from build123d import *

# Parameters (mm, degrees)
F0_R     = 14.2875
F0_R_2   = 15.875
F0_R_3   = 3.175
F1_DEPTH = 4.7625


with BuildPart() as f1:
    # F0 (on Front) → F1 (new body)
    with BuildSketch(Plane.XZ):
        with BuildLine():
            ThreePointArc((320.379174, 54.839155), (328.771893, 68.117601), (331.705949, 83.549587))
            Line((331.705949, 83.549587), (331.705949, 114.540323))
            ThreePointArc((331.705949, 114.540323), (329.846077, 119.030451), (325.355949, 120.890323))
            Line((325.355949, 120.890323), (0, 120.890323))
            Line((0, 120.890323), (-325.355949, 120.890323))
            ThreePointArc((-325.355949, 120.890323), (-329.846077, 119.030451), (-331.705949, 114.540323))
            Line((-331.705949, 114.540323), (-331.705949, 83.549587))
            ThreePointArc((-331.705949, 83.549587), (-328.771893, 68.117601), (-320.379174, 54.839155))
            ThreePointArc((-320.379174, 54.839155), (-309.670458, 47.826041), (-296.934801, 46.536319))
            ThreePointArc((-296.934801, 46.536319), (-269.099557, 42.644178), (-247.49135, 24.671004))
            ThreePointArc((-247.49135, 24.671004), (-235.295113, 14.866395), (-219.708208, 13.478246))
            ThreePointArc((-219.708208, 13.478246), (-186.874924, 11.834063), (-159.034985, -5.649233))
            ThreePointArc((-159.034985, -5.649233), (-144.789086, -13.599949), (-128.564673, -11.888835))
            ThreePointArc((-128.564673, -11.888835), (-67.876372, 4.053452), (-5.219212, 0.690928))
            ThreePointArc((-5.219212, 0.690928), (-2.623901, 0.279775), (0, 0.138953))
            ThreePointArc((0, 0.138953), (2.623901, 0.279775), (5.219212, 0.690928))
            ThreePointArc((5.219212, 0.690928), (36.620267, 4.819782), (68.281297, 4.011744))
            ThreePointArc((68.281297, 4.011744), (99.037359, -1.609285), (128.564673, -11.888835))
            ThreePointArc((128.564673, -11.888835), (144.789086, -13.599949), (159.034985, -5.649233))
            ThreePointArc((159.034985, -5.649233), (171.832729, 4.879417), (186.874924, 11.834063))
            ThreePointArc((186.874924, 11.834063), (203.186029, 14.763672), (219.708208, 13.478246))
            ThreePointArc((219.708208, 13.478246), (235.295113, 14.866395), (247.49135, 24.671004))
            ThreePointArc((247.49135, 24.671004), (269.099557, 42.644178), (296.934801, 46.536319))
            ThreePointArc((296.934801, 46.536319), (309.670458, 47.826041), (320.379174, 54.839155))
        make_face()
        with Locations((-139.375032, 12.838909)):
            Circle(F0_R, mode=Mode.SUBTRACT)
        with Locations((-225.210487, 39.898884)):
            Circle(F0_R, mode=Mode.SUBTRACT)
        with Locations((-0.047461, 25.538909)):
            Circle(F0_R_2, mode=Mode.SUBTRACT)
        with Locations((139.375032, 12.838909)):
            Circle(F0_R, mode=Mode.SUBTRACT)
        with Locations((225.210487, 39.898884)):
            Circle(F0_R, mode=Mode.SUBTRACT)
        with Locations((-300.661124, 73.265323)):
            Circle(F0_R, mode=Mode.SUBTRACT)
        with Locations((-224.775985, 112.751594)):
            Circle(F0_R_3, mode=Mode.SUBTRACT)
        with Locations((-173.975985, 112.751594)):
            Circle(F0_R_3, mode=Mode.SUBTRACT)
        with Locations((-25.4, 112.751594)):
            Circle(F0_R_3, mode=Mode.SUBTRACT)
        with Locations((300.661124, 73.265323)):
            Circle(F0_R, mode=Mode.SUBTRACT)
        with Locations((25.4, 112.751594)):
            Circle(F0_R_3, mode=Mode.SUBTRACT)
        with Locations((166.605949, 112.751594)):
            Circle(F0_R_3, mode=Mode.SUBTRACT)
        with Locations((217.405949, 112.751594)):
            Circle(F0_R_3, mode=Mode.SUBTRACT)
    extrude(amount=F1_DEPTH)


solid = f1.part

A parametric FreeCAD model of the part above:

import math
import FreeCAD as App
import Part
import Sketcher

V = App.Vector
Q = App.Units.Quantity

doc = App.newDocument("Part")
body = doc.addObject("PartDesign::Body", "Body")

# Sketch on XZ plane
sketch1 = body.newObject("Sketcher::SketchObject", "Sketch")
sketch1.AttachmentSupport = (doc.getObject("XZ_Plane"), [""])
sketch1.MapMode = "FlatFace"
sketch1.addGeometry(Part.ArcOfCircle(Part.Circle(V(289.655818, 83.549587, 0), V(0, 0, 1), 42.050131), math.radians(-43.060229), math.radians(0)), False)
sketch1.addGeometry(Part.LineSegment(V(331.705949, 83.549587, 0), V(331.705949, 114.540323, 0)), False)
sketch1.addGeometry(Part.ArcOfCircle(Part.Circle(V(325.355949, 114.540323, 0), V(0, 0, 1), 6.35), math.radians(0.000002), math.radians(89.999998)), False)
sketch1.addGeometry(Part.LineSegment(V(325.355949, 120.890323, 0), V(-325.355949, 120.890323, 0)), False)
sketch1.addGeometry(Part.ArcOfCircle(Part.Circle(V(-325.355949, 114.540323, 0), V(0, 0, 1), 6.35), math.radians(90.000002), math.radians(179.999998)), False)
sketch1.addGeometry(Part.LineSegment(V(-331.705949, 114.540323, 0), V(-331.705949, 83.549587, 0)), False)
sketch1.addGeometry(Part.ArcOfCircle(Part.Circle(V(-289.655818, 83.549587, 0), V(0, 0, 1), 42.050131), math.radians(180), math.radians(223.060229)), False)
sketch1.addGeometry(Part.ArcOfCircle(Part.Circle(V(-300.661125, 73.26532, 0), V(0, 0, 1), 26.987497), math.radians(-136.939774), math.radians(-82.063475)), False)
sketch1.addGeometry(Part.ArcOfCircle(Part.Circle(V(-289.850516, -4.27941, 0), V(0, 0, 1), 51.307167), math.radians(34.350693), math.radians(97.936524)), False)
sketch1.addGeometry(Part.ArcOfCircle(Part.Circle(V(-225.210487, 39.898884, 0), V(0, 0, 1), 26.9875), math.radians(-145.649304), math.radians(-78.235911)), False)
sketch1.addGeometry(Part.ArcOfCircle(Part.Circle(V(-206.440665, -50.229347, 0), V(0, 0, 1), 65.074458), math.radians(43.240575), math.radians(101.764089)), False)
sketch1.addGeometry(Part.ArcOfCircle(Part.Circle(V(-139.375032, 12.838906, 0), V(0, 0, 1), 26.987498), math.radians(-136.75943), math.radians(-66.386237)), False)
sketch1.addGeometry(Part.ArcOfCircle(Part.Circle(V(-47.289987, -197.797508, 0), V(0, 0, 1), 202.898027), math.radians(78.032937), math.radians(113.613762)), False)
sketch1.addGeometry(Part.ArcOfCircle(Part.Circle(V(0.047457, 25.538856, 0), V(0, 0, 1), 25.399947), math.radians(-101.967077), math.radians(-90.10705)), False)
sketch1.addGeometry(Part.ArcOfCircle(Part.Circle(V(-0.047457, 25.538856, 0), V(0, 0, 1), 25.399947), math.radians(-89.89295), math.radians(-78.032923)), False)
sketch1.addGeometry(Part.ArcOfCircle(Part.Circle(V(47.289989, -197.797544, 0), V(0, 0, 1), 202.898063), math.radians(84.061701), math.radians(101.967061)), False)
sketch1.addGeometry(Part.ArcOfCircle(Part.Circle(V(47.289991, -197.797494, 0), V(0, 0, 1), 202.898013), math.radians(66.386237), math.radians(84.0617)), False)
sketch1.addGeometry(Part.ArcOfCircle(Part.Circle(V(139.375032, 12.838906, 0), V(0, 0, 1), 26.987498), math.radians(-113.613763), math.radians(-43.24057)), False)
sketch1.addGeometry(Part.ArcOfCircle(Part.Circle(V(206.440661, -50.22934, 0), V(0, 0, 1), 65.07445), math.radians(107.497667), math.radians(136.759427)), False)
sketch1.addGeometry(Part.ArcOfCircle(Part.Circle(V(206.440664, -50.229328, 0), V(0, 0, 1), 65.074439), math.radians(78.235907), math.radians(107.497673)), False)
sketch1.addGeometry(Part.ArcOfCircle(Part.Circle(V(225.210487, 39.898884, 0), V(0, 0, 1), 26.9875), math.radians(-101.764089), math.radians(-34.350696)), False)
sketch1.addGeometry(Part.ArcOfCircle(Part.Circle(V(289.850516, -4.27941, 0), V(0, 0, 1), 51.307167), math.radians(82.063476), math.radians(145.649307)), False)
sketch1.addGeometry(Part.ArcOfCircle(Part.Circle(V(300.661125, 73.26532, 0), V(0, 0, 1), 26.987497), math.radians(-97.936525), math.radians(-43.060226)), False)
sketch1.addGeometry(Part.Circle(V(-139.375032, 12.838909, 0), V(0, 0, 1), 14.2875), False)
sketch1.addGeometry(Part.Circle(V(-0.047461, 25.538909, 0), V(0, 0, 1), 15.875), False)
sketch1.addGeometry(Part.Circle(V(-225.210487, 39.898884, 0), V(0, 0, 1), 14.2875), False)
sketch1.addGeometry(Part.Circle(V(139.375032, 12.838909, 0), V(0, 0, 1), 14.2875), False)
sketch1.addGeometry(Part.Circle(V(225.210487, 39.898884, 0), V(0, 0, 1), 14.2875), False)
sketch1.addGeometry(Part.Circle(V(-300.661124, 73.265323, 0), V(0, 0, 1), 14.2875), False)
sketch1.addGeometry(Part.Circle(V(-224.775985, 112.751594, 0), V(0, 0, 1), 3.175), False)
sketch1.addGeometry(Part.Circle(V(-173.975985, 112.751594, 0), V(0, 0, 1), 3.175), False)
sketch1.addGeometry(Part.Circle(V(-25.4, 112.751594, 0), V(0, 0, 1), 3.175), False)
sketch1.addGeometry(Part.Circle(V(300.661124, 73.265323, 0), V(0, 0, 1), 14.2875), False)
sketch1.addGeometry(Part.Circle(V(25.4, 112.751594, 0), V(0, 0, 1), 3.175), False)
sketch1.addGeometry(Part.Circle(V(166.605949, 112.751594, 0), V(0, 0, 1), 3.175), False)
sketch1.addGeometry(Part.Circle(V(217.405949, 112.751594, 0), V(0, 0, 1), 3.175), False)
sketch1.addConstraint(Sketcher.Constraint("Coincident", 0, 2, 1, 1))
sketch1.addConstraint(Sketcher.Constraint("Coincident", 1, 2, 2, 1))
sketch1.addConstraint(Sketcher.Constraint("Coincident", 2, 2, 3, 1))
sketch1.addConstraint(Sketcher.Constraint("Coincident", 3, 2, 4, 1))
sketch1.addConstraint(Sketcher.Constraint("Coincident", 4, 2, 5, 1))
sketch1.addConstraint(Sketcher.Constraint("Coincident", 5, 2, 6, 1))
sketch1.addConstraint(Sketcher.Constraint("Coincident", 6, 2, 7, 1))
sketch1.addConstraint(Sketcher.Constraint("Coincident", 7, 2, 8, 2))
sketch1.addConstraint(Sketcher.Constraint("Coincident", 8, 1, 9, 1))
sketch1.addConstraint(Sketcher.Constraint("Coincident", 9, 2, 10, 2))
sketch1.addConstraint(Sketcher.Constraint("Coincident", 10, 1, 11, 1))
sketch1.addConstraint(Sketcher.Constraint("Coincident", 11, 2, 12, 2))
sketch1.addConstraint(Sketcher.Constraint("Coincident", 12, 1, 13, 1))
sketch1.addConstraint(Sketcher.Constraint("Coincident", 13, 2, 14, 1))
sketch1.addConstraint(Sketcher.Constraint("Coincident", 14, 2, 15, 2))
sketch1.addConstraint(Sketcher.Constraint("Coincident", 15, 1, 16, 2))
sketch1.addConstraint(Sketcher.Constraint("Coincident", 16, 1, 17, 1))
sketch1.addConstraint(Sketcher.Constraint("Coincident", 17, 2, 18, 2))
sketch1.addConstraint(Sketcher.Constraint("Coincident", 18, 1, 19, 2))
sketch1.addConstraint(Sketcher.Constraint("Coincident", 19, 1, 20, 1))
sketch1.addConstraint(Sketcher.Constraint("Coincident", 20, 2, 21, 2))
sketch1.addConstraint(Sketcher.Constraint("Coincident", 21, 1, 22, 1))
sketch1.addConstraint(Sketcher.Constraint("Coincident", 22, 2, 0, 1))
sketch1.addConstraint(Sketcher.Constraint("Vertical", 1))
sketch1.addConstraint(Sketcher.Constraint("Horizontal", 3))
sketch1.addConstraint(Sketcher.Constraint("Vertical", 5))
sketch1.addConstraint(Sketcher.Constraint("Coincident", 23, 3, 11, 3))
sketch1.addConstraint(Sketcher.Constraint("Coincident", 25, 3, 9, 3))
sketch1.addConstraint(Sketcher.Constraint("Coincident", 26, 3, 17, 3))
sketch1.addConstraint(Sketcher.Constraint("Coincident", 27, 3, 20, 3))
sketch1.addConstraint(Sketcher.Constraint("Coincident", 28, 3, 7, 3))
sketch1.addConstraint(Sketcher.Constraint("Coincident", 32, 3, 22, 3))
sketch1.addConstraint(Sketcher.Constraint("PointOnObject", 13, 2, -2))
sketch1.addConstraint(Sketcher.Constraint("Diameter", 24, Q("1.25 in")))
sketch1.addConstraint(Sketcher.Constraint("Diameter", 29, Q("0.25 in")))
sketch1.addConstraint(Sketcher.Constraint("Diameter", 30, Q("0.25 in")))
sketch1.addConstraint(Sketcher.Constraint("Diameter", 31, Q("0.25 in")))
sketch1.addConstraint(Sketcher.Constraint("Diameter", 33, Q("0.25 in")))
sketch1.addConstraint(Sketcher.Constraint("Diameter", 34, Q("0.25 in")))
sketch1.addConstraint(Sketcher.Constraint("Diameter", 35, Q("0.25 in")))
sketch1.addConstraint(Sketcher.Constraint("Radius", 2, Q("0.25 in")))
sketch1.addConstraint(Sketcher.Constraint("Radius", 4, Q("0.25 in")))
sketch1.addConstraint(Sketcher.Constraint("Diameter", 23, Q("1.125 in")))
sketch1.addConstraint(Sketcher.Constraint("Diameter", 25, Q("1.125 in")))
sketch1.addConstraint(Sketcher.Constraint("Diameter", 26, Q("1.125 in")))
sketch1.addConstraint(Sketcher.Constraint("Diameter", 27, Q("1.125 in")))
sketch1.addConstraint(Sketcher.Constraint("Diameter", 28, Q("1.125 in")))
sketch1.addConstraint(Sketcher.Constraint("Diameter", 32, Q("1.125 in")))
sketch1.addConstraint(Sketcher.Constraint("DistanceX", 31, 3, -1, 1, Q("1 in")))
sketch1.addConstraint(Sketcher.Constraint("DistanceX", -1, 1, 33, 3, Q("1 in")))
sketch1.addConstraint(Sketcher.Constraint("Radius", 7, Q("1.0624999 in")))
sketch1.addConstraint(Sketcher.Constraint("Radius", 9, Q("1.0625 in")))
sketch1.addConstraint(Sketcher.Constraint("Radius", 11, Q("1.0624999 in")))
sketch1.addConstraint(Sketcher.Constraint("Radius", 17, Q("1.0624999 in")))
sketch1.addConstraint(Sketcher.Constraint("Radius", 20, Q("1.0625 in")))
sketch1.addConstraint(Sketcher.Constraint("Radius", 22, Q("1.0624999 in")))
sketch1.addConstraint(Sketcher.Constraint("DistanceX", 29, 3, 30, 3, Q("2 in")))
sketch1.addConstraint(Sketcher.Constraint("DistanceX", 34, 3, 35, 3, Q("2 in")))
sketch1.addConstraint(Sketcher.Constraint("DistanceY", 23, 3, 24, 3, Q("0.5 in")))
sketch1.addConstraint(Sketcher.Constraint("DistanceY", 17, 3, 24, 3, Q("0.5000001 in")))
sketch1.addConstraint(Sketcher.Constraint("DistanceX", 2, 2, 1, 2, Q("0.25 in")))
sketch1.addConstraint(Sketcher.Constraint("DistanceY", 1, 2, 2, 2, Q("0.25 in")))
sketch1.addConstraint(Sketcher.Constraint("DistanceX", 4, 2, 3, 2, Q("0.25 in")))
sketch1.addConstraint(Sketcher.Constraint("DistanceY", 4, 2, 3, 2, Q("0.25 in")))
sketch1.addConstraint(Sketcher.Constraint("Radius", 0, Q("42.050131 mm")))
sketch1.addConstraint(Sketcher.Constraint("Radius", 6, Q("42.050131 mm")))
sketch1.addConstraint(Sketcher.Constraint("Radius", 18, Q("65.07445 mm")))
sketch1.addConstraint(Sketcher.Constraint("Radius", 19, Q("65.074439 mm")))
sketch1.addConstraint(Sketcher.Constraint("DistanceY", 7, 3, 4, 3, Q("1.6250001 in")))
sketch1.addConstraint(Sketcher.Constraint("DistanceY", 10, 3, 13, 3, Q("2.9830001 in")))
sketch1.addConstraint(Sketcher.Constraint("DistanceY", 10, 3, 14, 3, Q("2.9830001 in")))
sketch1.addConstraint(Sketcher.Constraint("DistanceY", 22, 3, 2, 3, Q("1.6250001 in")))
sketch1.addConstraint(Sketcher.Constraint("DistanceX", 3, 2, 3, 1, Q("650.711898 mm")))
sketch1.addConstraint(Sketcher.Constraint("Radius", 8, Q("51.307167 mm")))
sketch1.addConstraint(Sketcher.Constraint("Radius", 10, Q("65.074458 mm")))
sketch1.addConstraint(Sketcher.Constraint("Radius", 12, Q("202.898027 mm")))
sketch1.addConstraint(Sketcher.Constraint("Radius", 13, Q("25.399947 mm")))
sketch1.addConstraint(Sketcher.Constraint("Radius", 14, Q("25.399947 mm")))
sketch1.addConstraint(Sketcher.Constraint("Radius", 15, Q("202.898063 mm")))
sketch1.addConstraint(Sketcher.Constraint("Radius", 16, Q("202.898013 mm")))
sketch1.addConstraint(Sketcher.Constraint("Radius", 21, Q("51.307167 mm")))
sketch1.addConstraint(Sketcher.Constraint("DistanceX", 7, 2, -1, 1, Q("296.934801 mm")))
sketch1.addConstraint(Sketcher.Constraint("DistanceX", -1, 1, 21, 1, Q("296.934801 mm")))
sketch1.addConstraint(Sketcher.Constraint("DistanceX", 9, 3, 12, 3, Q("177.9205 mm")))
sketch1.addConstraint(Sketcher.Constraint("DistanceY", 12, 3, 8, 3, Q("193.518098 mm")))
sketch1.addConstraint(Sketcher.Constraint("DistanceY", 15, 3, 13, 3, Q("223.3364 mm")))
sketch1.addConstraint(Sketcher.Constraint("DistanceY", 16, 3, 11, 3, Q("210.6364 mm")))
sketch1.addConstraint(Sketcher.Constraint("DistanceX", 25, 3, 30, 3, Q("51.234502 mm")))
sketch1.addConstraint(Sketcher.Constraint("DistanceY", 7, 2, 7, 3, Q("26.729001 mm")))
sketch1.addConstraint(Sketcher.Constraint("DistanceY", 16, 1, 17, 2, Q("6.239602 mm")))
sketch1.addConstraint(Sketcher.Constraint("DistanceY", 21, 1, 22, 3, Q("26.729001 mm")))
sketch1.addConstraint(Sketcher.Constraint("DistanceY", 1, 1, 1, 2, Q("30.990736 mm")))
sketch1.addConstraint(Sketcher.Constraint("DistanceY", 5, 2, 5, 1, Q("30.990736 mm")))
sketch1.addConstraint(Sketcher.Constraint("DistanceX", -1, 1, 0, 3, Q("289.655818 mm")))
sketch1.addConstraint(Sketcher.Constraint("DistanceY", -1, 1, 7, 3, Q("73.26532 mm")))
sketch1.addConstraint(Sketcher.Constraint("DistanceY", 8, 3, -1, 1, Q("4.27941 mm")))
sketch1.addConstraint(Sketcher.Constraint("DistanceX", 11, 3, -1, 1, Q("139.375032 mm")))
sketch1.addConstraint(Sketcher.Constraint("DistanceX", -1, 1, 15, 3, Q("47.289989 mm")))
sketch1.addConstraint(Sketcher.Constraint("DistanceX", -1, 1, 18, 3, Q("206.440661 mm")))
sketch1.addConstraint(Sketcher.Constraint("DistanceY", 21, 3, -1, 1, Q("4.27941 mm")))
sketch1.addConstraint(Sketcher.Constraint("DistanceX", 24, 3, -1, 1, Q("0.047461 mm")))
sketch1.addConstraint(Sketcher.Constraint("DistanceX", -1, 1, 34, 3, Q("166.605949 mm")))
sketch1.addConstraint(Sketcher.Constraint("DistanceX", 8, 1, -1, 1, Q("247.49135 mm")))
sketch1.addConstraint(Sketcher.Constraint("DistanceX", 12, 1, -1, 1, Q("5.219212 mm")))
sketch1.addConstraint(Sketcher.Constraint("DistanceX", -1, 1, 14, 2, Q("5.219212 mm")))
sketch1.addConstraint(Sketcher.Constraint("DistanceX", -1, 1, 19, 1, Q("219.708208 mm")))
sketch1.addConstraint(Sketcher.Constraint("DistanceX", -1, 1, 20, 2, Q("247.49135 mm")))
sketch1.addConstraint(Sketcher.Constraint("DistanceY", 19, 3, 2, 3, Q("164.76965 mm")))
sketch1.addConstraint(Sketcher.Constraint("DistanceY", 25, 3, 29, 3, Q("72.85271 mm")))
sketch1.addConstraint(Sketcher.Constraint("DistanceY", 25, 3, 30, 3, Q("72.85271 mm")))
sketch1.addConstraint(Sketcher.Constraint("DistanceY", 14, 3, 31, 3, Q("87.212738 mm")))
sketch1.addConstraint(Sketcher.Constraint("DistanceY", 13, 3, 33, 3, Q("87.212738 mm")))
sketch1.addConstraint(Sketcher.Constraint("DistanceY", 27, 3, 34, 3, Q("72.85271 mm")))
sketch1.addConstraint(Sketcher.Constraint("DistanceY", 27, 3, 35, 3, Q("72.85271 mm")))
sketch1.addConstraint(Sketcher.Constraint("DistanceX", 6, 2, 7, 3, Q("19.718049 mm")))
sketch1.addConstraint(Sketcher.Constraint("DistanceX", 9, 3, 9, 2, Q("5.502279 mm")))
sketch1.addConstraint(Sketcher.Constraint("DistanceY", 10, 1, 11, 3, Q("18.488139 mm")))
sketch1.addConstraint(Sketcher.Constraint("DistanceX", 11, 3, 11, 2, Q("10.810359 mm")))
sketch1.addConstraint(Sketcher.Constraint("DistanceY", 13, 2, 15, 1, Q("3.872791 mm")))
sketch1.addConstraint(Sketcher.Constraint("DistanceX", 16, 1, 17, 3, Q("10.810359 mm")))
sketch1.addConstraint(Sketcher.Constraint("DistanceX", 17, 2, 18, 1, Q("27.839939 mm")))
sketch1.addConstraint(Sketcher.Constraint("DistanceX", 22, 3, 22, 2, Q("19.718049 mm")))
pad1 = body.newObject("PartDesign::Pad", "Pad")
pad1.Profile = sketch1
pad1.Length = Q("0.1875 in")

doc.recompute()
